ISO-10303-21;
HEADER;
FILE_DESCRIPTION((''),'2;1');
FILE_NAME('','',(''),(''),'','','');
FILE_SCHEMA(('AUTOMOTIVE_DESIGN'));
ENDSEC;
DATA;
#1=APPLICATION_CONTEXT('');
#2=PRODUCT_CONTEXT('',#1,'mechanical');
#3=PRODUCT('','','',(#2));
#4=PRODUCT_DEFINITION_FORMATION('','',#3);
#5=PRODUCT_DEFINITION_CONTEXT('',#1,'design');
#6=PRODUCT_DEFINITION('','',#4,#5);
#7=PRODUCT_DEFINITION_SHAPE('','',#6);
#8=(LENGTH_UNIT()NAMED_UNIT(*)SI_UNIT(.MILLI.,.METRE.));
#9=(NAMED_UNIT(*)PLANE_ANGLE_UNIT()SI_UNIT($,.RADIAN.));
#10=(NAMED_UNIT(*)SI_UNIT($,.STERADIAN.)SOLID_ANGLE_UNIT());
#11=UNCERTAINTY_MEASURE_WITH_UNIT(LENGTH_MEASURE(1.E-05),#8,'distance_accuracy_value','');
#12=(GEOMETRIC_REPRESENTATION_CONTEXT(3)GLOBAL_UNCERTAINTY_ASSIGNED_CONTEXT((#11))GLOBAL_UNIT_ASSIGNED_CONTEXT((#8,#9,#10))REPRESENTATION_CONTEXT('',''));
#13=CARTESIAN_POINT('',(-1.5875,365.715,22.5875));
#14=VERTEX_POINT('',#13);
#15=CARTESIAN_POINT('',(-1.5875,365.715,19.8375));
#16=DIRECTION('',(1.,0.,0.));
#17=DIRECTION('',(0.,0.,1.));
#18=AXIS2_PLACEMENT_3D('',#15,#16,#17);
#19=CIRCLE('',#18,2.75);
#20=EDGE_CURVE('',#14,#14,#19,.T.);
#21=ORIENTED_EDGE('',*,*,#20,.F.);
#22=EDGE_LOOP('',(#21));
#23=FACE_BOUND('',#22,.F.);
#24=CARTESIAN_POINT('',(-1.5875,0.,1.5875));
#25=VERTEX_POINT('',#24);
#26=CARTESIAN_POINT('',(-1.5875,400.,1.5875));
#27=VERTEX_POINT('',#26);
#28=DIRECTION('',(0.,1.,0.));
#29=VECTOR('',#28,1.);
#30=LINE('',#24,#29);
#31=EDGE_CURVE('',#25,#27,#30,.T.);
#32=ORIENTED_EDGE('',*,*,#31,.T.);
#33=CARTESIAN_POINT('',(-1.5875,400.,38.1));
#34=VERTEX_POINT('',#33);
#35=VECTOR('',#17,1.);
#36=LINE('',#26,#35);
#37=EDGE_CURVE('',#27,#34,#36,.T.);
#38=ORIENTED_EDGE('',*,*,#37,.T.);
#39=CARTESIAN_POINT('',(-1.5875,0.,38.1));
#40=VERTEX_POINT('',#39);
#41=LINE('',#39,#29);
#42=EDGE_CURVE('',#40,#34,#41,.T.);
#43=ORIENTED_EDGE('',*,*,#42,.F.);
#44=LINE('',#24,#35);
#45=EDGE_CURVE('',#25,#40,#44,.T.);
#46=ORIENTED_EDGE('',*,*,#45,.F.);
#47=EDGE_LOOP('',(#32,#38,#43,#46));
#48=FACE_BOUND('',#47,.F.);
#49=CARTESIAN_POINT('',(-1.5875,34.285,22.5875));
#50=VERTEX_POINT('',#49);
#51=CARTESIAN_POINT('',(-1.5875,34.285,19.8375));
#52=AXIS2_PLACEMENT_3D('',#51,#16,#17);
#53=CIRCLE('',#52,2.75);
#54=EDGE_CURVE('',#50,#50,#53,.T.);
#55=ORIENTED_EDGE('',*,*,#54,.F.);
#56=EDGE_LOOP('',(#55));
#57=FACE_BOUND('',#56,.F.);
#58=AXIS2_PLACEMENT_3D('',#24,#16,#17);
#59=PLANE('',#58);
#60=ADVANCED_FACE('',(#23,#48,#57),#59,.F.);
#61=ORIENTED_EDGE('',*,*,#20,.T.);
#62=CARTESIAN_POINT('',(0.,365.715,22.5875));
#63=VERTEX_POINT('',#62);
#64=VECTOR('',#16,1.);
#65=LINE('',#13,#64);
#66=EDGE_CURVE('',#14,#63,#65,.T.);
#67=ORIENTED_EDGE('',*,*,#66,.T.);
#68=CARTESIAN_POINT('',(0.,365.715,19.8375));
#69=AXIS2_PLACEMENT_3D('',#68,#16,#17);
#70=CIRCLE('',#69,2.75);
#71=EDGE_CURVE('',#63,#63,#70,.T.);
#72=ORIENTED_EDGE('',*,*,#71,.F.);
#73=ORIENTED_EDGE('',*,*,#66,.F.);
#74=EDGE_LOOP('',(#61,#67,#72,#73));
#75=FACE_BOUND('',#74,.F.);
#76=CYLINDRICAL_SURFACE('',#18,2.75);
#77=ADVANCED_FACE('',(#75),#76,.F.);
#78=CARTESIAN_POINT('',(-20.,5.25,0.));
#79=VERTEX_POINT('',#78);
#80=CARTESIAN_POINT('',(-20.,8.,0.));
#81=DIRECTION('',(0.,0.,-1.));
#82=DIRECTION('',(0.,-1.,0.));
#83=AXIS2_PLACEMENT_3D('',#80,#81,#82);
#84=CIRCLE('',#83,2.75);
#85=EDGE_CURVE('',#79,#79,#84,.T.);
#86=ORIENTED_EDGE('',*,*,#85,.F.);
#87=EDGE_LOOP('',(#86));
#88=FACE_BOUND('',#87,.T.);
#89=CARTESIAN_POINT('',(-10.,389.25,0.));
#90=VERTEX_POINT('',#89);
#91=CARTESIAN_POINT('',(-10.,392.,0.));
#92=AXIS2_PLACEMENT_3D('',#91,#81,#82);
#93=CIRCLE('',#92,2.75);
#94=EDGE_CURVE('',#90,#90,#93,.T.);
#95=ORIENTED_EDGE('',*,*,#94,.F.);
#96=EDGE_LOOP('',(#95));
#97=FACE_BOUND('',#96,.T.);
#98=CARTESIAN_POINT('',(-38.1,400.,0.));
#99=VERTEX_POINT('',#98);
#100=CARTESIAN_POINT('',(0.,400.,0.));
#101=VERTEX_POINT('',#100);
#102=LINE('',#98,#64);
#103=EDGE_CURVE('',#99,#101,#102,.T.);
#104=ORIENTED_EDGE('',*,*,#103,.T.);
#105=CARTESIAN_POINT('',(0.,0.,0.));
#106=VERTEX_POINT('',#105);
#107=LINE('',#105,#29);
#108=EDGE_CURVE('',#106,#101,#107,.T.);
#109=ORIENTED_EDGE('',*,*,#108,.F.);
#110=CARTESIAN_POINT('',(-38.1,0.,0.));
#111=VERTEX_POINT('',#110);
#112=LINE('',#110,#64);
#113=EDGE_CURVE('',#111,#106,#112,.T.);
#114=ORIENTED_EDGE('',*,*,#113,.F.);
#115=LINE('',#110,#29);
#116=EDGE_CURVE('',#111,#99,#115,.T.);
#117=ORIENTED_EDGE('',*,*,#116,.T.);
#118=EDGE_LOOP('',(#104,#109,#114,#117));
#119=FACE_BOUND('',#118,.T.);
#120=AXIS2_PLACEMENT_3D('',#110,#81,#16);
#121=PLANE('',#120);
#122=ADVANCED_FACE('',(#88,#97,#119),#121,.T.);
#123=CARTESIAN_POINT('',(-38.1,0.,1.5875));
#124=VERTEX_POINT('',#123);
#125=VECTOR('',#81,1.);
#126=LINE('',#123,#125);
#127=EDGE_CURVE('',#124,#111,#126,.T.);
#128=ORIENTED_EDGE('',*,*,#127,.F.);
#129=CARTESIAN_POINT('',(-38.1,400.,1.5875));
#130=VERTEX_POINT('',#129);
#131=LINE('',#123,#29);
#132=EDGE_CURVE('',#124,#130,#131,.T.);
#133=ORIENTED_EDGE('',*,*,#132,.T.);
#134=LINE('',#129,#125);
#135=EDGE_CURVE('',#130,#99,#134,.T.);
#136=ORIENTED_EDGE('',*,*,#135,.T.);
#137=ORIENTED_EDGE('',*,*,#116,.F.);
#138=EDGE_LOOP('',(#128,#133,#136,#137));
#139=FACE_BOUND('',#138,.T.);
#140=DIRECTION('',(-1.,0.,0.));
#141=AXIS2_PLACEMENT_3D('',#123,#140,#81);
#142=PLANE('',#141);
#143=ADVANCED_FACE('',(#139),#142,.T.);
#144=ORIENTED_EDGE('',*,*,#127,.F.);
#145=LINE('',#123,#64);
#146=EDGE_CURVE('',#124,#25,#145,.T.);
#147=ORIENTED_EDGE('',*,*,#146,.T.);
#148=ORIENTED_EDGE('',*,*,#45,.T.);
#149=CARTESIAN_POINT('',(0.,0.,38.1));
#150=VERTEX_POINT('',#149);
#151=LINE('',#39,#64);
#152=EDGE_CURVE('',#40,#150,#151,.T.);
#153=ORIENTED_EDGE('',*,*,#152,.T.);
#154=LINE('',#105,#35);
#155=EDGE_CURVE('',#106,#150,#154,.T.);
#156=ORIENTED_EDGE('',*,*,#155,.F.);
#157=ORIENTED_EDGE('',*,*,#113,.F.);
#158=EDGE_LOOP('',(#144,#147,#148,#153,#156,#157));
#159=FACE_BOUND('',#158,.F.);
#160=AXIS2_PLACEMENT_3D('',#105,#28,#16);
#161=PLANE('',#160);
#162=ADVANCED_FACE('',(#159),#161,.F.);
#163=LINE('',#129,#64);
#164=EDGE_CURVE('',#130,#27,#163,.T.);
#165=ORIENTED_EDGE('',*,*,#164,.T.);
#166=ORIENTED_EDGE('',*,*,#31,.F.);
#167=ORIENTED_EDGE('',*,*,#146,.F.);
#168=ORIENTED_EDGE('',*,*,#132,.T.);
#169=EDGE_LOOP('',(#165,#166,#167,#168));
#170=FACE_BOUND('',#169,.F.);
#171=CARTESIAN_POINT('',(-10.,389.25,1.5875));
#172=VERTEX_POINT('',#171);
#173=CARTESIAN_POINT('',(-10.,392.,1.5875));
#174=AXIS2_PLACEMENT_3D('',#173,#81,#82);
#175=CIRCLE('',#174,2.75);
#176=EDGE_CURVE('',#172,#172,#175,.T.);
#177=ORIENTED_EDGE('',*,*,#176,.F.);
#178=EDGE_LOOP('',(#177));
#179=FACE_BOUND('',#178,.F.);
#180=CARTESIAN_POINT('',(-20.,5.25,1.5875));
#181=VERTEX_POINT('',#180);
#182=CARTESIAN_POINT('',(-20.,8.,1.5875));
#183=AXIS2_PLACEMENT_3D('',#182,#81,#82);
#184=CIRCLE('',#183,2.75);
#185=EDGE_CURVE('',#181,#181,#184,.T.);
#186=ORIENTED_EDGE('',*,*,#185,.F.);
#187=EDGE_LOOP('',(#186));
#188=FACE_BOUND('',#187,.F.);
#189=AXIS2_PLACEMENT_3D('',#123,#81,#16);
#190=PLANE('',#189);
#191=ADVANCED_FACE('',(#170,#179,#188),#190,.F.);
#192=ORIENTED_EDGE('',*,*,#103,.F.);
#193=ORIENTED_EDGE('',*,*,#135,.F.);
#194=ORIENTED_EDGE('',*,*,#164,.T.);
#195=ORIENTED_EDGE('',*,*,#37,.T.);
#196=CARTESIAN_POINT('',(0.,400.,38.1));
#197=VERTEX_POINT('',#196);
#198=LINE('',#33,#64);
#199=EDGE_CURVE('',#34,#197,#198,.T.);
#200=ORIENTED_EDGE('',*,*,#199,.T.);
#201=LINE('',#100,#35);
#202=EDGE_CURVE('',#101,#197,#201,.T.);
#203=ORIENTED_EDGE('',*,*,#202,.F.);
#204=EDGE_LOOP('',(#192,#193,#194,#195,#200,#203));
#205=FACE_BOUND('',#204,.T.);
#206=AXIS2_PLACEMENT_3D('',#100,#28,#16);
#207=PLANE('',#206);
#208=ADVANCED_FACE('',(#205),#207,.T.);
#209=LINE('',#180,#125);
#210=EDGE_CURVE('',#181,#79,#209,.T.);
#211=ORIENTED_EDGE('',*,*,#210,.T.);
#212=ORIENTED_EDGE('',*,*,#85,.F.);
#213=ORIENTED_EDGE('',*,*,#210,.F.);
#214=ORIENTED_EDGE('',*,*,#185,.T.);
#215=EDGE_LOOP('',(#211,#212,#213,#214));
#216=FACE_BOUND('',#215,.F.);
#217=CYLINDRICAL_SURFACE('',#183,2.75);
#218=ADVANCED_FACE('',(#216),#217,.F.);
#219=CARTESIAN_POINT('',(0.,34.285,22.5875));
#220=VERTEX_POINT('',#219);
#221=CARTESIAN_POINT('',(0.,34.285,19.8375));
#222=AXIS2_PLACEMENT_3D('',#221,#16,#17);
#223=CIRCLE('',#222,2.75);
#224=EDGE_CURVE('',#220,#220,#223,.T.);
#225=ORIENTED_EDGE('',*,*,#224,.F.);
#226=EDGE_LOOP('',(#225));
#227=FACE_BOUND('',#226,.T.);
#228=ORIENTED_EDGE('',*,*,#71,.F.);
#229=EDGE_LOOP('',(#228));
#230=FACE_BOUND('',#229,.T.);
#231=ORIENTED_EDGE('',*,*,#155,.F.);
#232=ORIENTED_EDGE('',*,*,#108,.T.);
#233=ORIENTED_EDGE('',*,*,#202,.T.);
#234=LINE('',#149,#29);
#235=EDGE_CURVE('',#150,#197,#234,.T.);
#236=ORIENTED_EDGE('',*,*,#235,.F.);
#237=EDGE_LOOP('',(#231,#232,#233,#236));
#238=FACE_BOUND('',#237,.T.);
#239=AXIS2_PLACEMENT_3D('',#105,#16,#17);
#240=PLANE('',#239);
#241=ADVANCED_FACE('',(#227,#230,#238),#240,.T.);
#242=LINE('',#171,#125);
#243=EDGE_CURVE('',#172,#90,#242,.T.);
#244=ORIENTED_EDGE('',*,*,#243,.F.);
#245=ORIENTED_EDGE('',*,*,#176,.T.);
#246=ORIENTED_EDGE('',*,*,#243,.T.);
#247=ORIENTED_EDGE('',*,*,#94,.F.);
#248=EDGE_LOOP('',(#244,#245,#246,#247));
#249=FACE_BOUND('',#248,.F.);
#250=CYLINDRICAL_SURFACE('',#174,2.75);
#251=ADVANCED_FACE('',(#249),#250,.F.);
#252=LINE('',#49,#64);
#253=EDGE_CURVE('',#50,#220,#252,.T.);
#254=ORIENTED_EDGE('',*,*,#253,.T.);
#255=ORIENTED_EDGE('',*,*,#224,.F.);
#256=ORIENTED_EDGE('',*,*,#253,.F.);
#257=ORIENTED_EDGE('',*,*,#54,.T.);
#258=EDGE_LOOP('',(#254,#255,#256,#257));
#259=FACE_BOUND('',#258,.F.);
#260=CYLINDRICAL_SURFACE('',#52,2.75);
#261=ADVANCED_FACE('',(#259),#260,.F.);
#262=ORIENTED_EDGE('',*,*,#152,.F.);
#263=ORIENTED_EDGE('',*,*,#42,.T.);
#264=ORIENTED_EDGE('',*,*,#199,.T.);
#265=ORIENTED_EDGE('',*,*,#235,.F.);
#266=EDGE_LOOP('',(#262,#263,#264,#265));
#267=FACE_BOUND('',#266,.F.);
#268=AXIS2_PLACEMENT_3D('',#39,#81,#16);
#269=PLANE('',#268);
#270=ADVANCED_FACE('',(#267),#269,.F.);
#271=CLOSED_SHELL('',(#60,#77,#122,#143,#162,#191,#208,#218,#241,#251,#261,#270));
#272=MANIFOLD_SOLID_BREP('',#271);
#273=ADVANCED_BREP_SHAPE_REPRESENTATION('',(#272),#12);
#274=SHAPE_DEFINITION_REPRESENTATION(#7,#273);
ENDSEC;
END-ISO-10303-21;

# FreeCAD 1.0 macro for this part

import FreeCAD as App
import Part
import Sketcher
Q = App.Units.Quantity

doc = App.newDocument("Part")
body = doc.addObject("PartDesign::Body", "Body")

# Sketch on XZ plane
sketch1 = doc.addObject("Sketcher::SketchObject", "Sketch")
body.addObject(sketch1)
sketch1.AttachmentSupport = (doc.XZ_Plane, [""])
sketch1.MapMode = "FlatFace"
sketch1.addGeometry([
    Part.LineSegment(App.Vector(0, 0, 0), App.Vector(-38.1, 0, 0)),  # 0
    Part.LineSegment(App.Vector(-38.1, 0, 0), App.Vector(-38.1, 1.6, 0)),  # 1
    Part.LineSegment(App.Vector(-38.1, 1.6, 0), App.Vector(-1.6, 1.6, 0)),  # 2
    Part.LineSegment(App.Vector(-1.6, 1.6, 0), App.Vector(-1.6, 38.1, 0)),  # 3
    Part.LineSegment(App.Vector(-1.6, 38.1, 0), App.Vector(0, 38.1, 0)),  # 4
    Part.LineSegment(App.Vector(0, 38.1, 0), App.Vector(0, 0, 0)),  # 5
], False)
sketch1.addConstraint([
    Sketcher.Constraint("Coincident", 0, 2, 1, 1),
    Sketcher.Constraint("Coincident", 1, 2, 2, 1),
    Sketcher.Constraint("Coincident", 2, 2, 3, 1),
    Sketcher.Constraint("Coincident", 3, 2, 4, 1),
    Sketcher.Constraint("Coincident", 4, 2, 5, 1),
    Sketcher.Constraint("Coincident", 5, 2, 0, 1),
    Sketcher.Constraint("Horizontal", 0),
    Sketcher.Constraint("Vertical", 1),
    Sketcher.Constraint("Horizontal", 2),
    Sketcher.Constraint("Vertical", 3),
    Sketcher.Constraint("Horizontal", 4),
    Sketcher.Constraint("Vertical", 5),
    Sketcher.Constraint("Coincident", 5, 2, -1, 1),
    Sketcher.Constraint("Equal", 4, 1),
    Sketcher.Constraint("Equal", 2, 3),
    Sketcher.Constraint("DistanceX", 0, 2, 0, 1, Q("1.5 in")),
    Sketcher.Constraint("DistanceX", 4, 1, 4, 2, Q("0.0625 in")),
])
pad1 = doc.addObject("PartDesign::Pad", "Pad")
body.addObject(pad1)
pad1.Profile = sketch1
pad1.Length = 400
pad1.Reversed = True

# Sketch on XY plane
sketch2 = doc.addObject("Sketcher::SketchObject", "Sketch001")
body.addObject(sketch2)
sketch2.AttachmentSupport = (doc.XY_Plane, [""])
sketch2.MapMode = "FlatFace"
sketch2.AttachmentOffset = App.Placement(App.Vector(0, 0, 0.0625 * 25.4), App.Rotation())
sketch2.addGeometry([
    Part.Circle(App.Vector(-20, 8, 0), App.Vector(0, 0, 1), 2.8),
    Part.Circle(App.Vector(-10, 392, 0), App.Vector(0, 0, 1), 2.8),
], False)
sketch2.addConstraint([
    Sketcher.Constraint("Equal", 0, 1),
    Sketcher.Constraint("Diameter", 0, 5.5),
    Sketcher.Constraint("DistanceX", 0, 3, -1, 1, Q("0.7874 in")),
    Sketcher.Constraint("DistanceX", 1, 3, -1, 1, Q("0.3937 in")),
    Sketcher.Constraint("DistanceY", 0, 3, 1, 3, Q("15.1181 in")),
    Sketcher.Constraint("DistanceY", -1, 1, 0, 3, 8.0),
])
doc.recompute()
hole = doc.addObject("PartDesign::Hole", "Hole")
body.addObject(hole)
hole.Profile = sketch2
hole.ThreadType = "None"
hole.Diameter = 5.5
hole.DepthType = "Dimension"
hole.Depth = Q("0.2755906 in")
hole.DrillPoint = "Angled"
hole.DrillPointAngle = 118

# Sketch on YZ plane
sketch3 = doc.addObject("Sketcher::SketchObject", "Sketch002")
body.addObject(sketch3)
sketch3.AttachmentSupport = (doc.YZ_Plane, [""])
sketch3.MapMode = "FlatFace"
sketch3.AttachmentOffset = App.Placement(App.Vector(0, 0, -0.0625 * 25.4), App.Rotation())
sketch3.addGeometry([
    Part.Circle(App.Vector(34.3, 19.8, 0), App.Vector(0, 0, 1), 2.8),
    Part.Circle(App.Vector(365.7, 19.8, 0), App.Vector(0, 0, 1), 2.8),
], False)
sketch3.addConstraint([
    Sketcher.Constraint("Equal", 0, 1),
    Sketcher.Constraint("Horizontal", 0, 3, 1, 3),
    Sketcher.Constraint("Diameter", 0, 5.5),
    Sketcher.Constraint("DistanceY", -1, 1, 0, 3, Q("0.781 in")),
    Sketcher.Constraint("DistanceX", -1, 1, 0, 3, Q("1.3498 in")),
    Sketcher.Constraint("DistanceX", -1, 1, 1, 3, 365.715),
])
doc.recompute()
hole2 = doc.addObject("PartDesign::Hole", "Hole001")
body.addObject(hole2)
hole2.Profile = sketch3
hole2.ThreadType = "None"
hole2.Diameter = 5.5
hole2.DepthType = "Dimension"
hole2.Depth = Q("0.2755906 in")
hole2.DrillPoint = "Angled"
hole2.DrillPointAngle = 118
hole2.Reversed = True

doc.recompute()
